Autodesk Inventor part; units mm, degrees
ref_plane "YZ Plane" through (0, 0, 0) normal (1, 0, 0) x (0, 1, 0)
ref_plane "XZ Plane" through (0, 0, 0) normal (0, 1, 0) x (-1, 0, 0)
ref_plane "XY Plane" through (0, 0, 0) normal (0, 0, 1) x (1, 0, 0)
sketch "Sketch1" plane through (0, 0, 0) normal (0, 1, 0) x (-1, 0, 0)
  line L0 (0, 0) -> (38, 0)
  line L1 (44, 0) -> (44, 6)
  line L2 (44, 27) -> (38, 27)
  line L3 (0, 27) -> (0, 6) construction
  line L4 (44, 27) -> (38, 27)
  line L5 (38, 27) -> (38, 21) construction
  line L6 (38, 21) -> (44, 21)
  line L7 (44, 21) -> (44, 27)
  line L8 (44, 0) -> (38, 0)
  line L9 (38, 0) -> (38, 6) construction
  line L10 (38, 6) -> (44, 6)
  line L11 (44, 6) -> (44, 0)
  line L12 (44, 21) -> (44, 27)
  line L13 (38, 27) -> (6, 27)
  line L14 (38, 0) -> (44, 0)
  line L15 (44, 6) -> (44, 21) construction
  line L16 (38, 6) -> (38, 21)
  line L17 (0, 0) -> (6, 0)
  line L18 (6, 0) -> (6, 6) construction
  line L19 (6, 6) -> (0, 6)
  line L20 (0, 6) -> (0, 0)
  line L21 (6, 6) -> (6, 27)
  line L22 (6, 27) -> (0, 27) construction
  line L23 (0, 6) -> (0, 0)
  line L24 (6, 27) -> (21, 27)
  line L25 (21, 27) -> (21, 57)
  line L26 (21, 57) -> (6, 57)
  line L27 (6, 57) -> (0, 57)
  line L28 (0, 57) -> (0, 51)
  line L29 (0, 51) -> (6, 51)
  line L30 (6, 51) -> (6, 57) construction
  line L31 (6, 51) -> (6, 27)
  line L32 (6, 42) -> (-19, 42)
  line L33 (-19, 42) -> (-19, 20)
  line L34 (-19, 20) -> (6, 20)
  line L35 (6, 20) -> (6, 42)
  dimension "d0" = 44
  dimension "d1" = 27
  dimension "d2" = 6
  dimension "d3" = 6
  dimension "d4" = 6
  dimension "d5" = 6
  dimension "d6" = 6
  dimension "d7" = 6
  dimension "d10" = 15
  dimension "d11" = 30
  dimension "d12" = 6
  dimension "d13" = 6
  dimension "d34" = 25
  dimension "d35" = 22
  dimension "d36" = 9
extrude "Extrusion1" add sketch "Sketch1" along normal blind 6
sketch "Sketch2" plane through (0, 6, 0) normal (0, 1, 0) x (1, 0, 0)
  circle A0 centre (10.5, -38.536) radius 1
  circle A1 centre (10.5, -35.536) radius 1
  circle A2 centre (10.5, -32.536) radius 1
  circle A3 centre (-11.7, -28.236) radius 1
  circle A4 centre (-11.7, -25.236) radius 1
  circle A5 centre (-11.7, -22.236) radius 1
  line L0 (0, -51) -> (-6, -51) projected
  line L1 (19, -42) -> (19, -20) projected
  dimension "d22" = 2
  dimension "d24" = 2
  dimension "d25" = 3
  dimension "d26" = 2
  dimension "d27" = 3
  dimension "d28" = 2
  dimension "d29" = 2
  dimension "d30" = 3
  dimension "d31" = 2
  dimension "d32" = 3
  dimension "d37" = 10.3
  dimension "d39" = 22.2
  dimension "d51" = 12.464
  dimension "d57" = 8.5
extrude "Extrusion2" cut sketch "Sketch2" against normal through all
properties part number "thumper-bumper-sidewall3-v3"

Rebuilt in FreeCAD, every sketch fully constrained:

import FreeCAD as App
import Part
import Sketcher

V = App.Vector

doc = App.newDocument("Part")
body = doc.addObject("PartDesign::Body", "Body")

# Sketch on XZ plane
sketch1 = doc.addObject("Sketcher::SketchObject", "Sketch")
body.addObject(sketch1)
sketch1.AttachmentSupport = (doc.XZ_Plane, [""])
sketch1.MapMode = "FlatFace"
sketch1.addGeometry([
    Part.LineSegment(V(0, 6, 0), V(0, 0, 0)),  # 0
    Part.LineSegment(V(0, 0, 0), V(-44, 0, 0)),  # 1
    Part.LineSegment(V(-44, 0, 0), V(-44, 6, 0)),  # 2
    Part.LineSegment(V(-44, 6, 0), V(-38, 6, 0)),  # 3
    Part.LineSegment(V(-38, 6, 0), V(-38, 21, 0)),  # 4
    Part.LineSegment(V(-38, 21, 0), V(-44, 21, 0)),  # 5
    Part.LineSegment(V(-44, 21, 0), V(-44, 27, 0)),  # 6
    Part.LineSegment(V(-44, 27, 0), V(-21, 27, 0)),  # 7
    Part.LineSegment(V(-21, 27, 0), V(-21, 57, 0)),  # 8
    Part.LineSegment(V(-21, 57, 0), V(0, 57, 0)),  # 9
    Part.LineSegment(V(0, 57, 0), V(0, 51, 0)),  # 10
    Part.LineSegment(V(0, 51, 0), V(-6, 51, 0)),  # 11
    Part.LineSegment(V(-6, 51, 0), V(-6, 42, 0)),  # 12
    Part.LineSegment(V(-6, 42, 0), V(19, 42, 0)),  # 13
    Part.LineSegment(V(19, 42, 0), V(19, 20, 0)),  # 14
    Part.LineSegment(V(19, 20, 0), V(-6, 20, 0)),  # 15
    Part.LineSegment(V(-6, 20, 0), V(-6, 6, 0)),  # 16
    Part.LineSegment(V(-6, 6, 0), V(0, 6, 0)),  # 17
], False)
sketch1.addConstraint([
    Sketcher.Constraint("Coincident", 0, 2, 1, 1),
    Sketcher.Constraint("Coincident", 1, 2, 2, 1),
    Sketcher.Constraint("Coincident", 2, 2, 3, 1),
    Sketcher.Constraint("Coincident", 3, 2, 4, 1),
    Sketcher.Constraint("Coincident", 4, 2, 5, 1),
    Sketcher.Constraint("Coincident", 5, 2, 6, 1),
    Sketcher.Constraint("Coincident", 6, 2, 7, 1),
    Sketcher.Constraint("Coincident", 7, 2, 8, 1),
    Sketcher.Constraint("Coincident", 8, 2, 9, 1),
    Sketcher.Constraint("Coincident", 9, 2, 10, 1),
    Sketcher.Constraint("Coincident", 10, 2, 11, 1),
    Sketcher.Constraint("Coincident", 11, 2, 12, 1),
    Sketcher.Constraint("Coincident", 12, 2, 13, 1),
    Sketcher.Constraint("Coincident", 13, 2, 14, 1),
    Sketcher.Constraint("Coincident", 14, 2, 15, 1),
    Sketcher.Constraint("Coincident", 15, 2, 16, 1),
    Sketcher.Constraint("Coincident", 16, 2, 17, 1),
    Sketcher.Constraint("Coincident", 17, 2, 0, 1),
    Sketcher.Constraint("Vertical", 0),
    Sketcher.Constraint("Horizontal", 1),
    Sketcher.Constraint("Vertical", 2),
    Sketcher.Constraint("Horizontal", 3),
    Sketcher.Constraint("Vertical", 4),
    Sketcher.Constraint("Horizontal", 5),
    Sketcher.Constraint("Vertical", 6),
    Sketcher.Constraint("Horizontal", 7),
    Sketcher.Constraint("Vertical", 8),
    Sketcher.Constraint("Horizontal", 9),
    Sketcher.Constraint("Vertical", 10),
    Sketcher.Constraint("Horizontal", 11),
    Sketcher.Constraint("Vertical", 12),
    Sketcher.Constraint("Horizontal", 13),
    Sketcher.Constraint("Vertical", 14),
    Sketcher.Constraint("Horizontal", 15),
    Sketcher.Constraint("Vertical", 16),
    Sketcher.Constraint("Horizontal", 17),
    Sketcher.Constraint("Coincident", 0, 2, -1, 1),
    Sketcher.Constraint("PointOnObject", 9, 2, -2),
    Sketcher.Constraint("Horizontal", 3, 2, 16, 2),
    Sketcher.Constraint("Vertical", 2, 2, 5, 2),
    Sketcher.Constraint("Vertical", 12, 2, 15, 2),
    Sketcher.Constraint("Equal", 5, 11),
    Sketcher.Constraint("Equal", 17, 0),
    Sketcher.Constraint("Equal", 2, 6),
    Sketcher.Constraint("Equal", 6, 10),
    Sketcher.Constraint("DistanceX", 1, 2, 1, 1, 44.0),
    Sketcher.Constraint("DistanceX", 3, 1, 3, 2, 6.0),
    Sketcher.Constraint("DistanceX", 13, 1, 13, 2, 25.0),
    Sketcher.Constraint("DistanceY", 4, 1, 4, 2, 15.0),
    Sketcher.Constraint("DistanceY", 8, 1, 8, 2, 30.0),
    Sketcher.Constraint("DistanceY", 12, 2, 12, 1, 9.0),
    Sketcher.Constraint("DistanceY", 14, 2, 14, 1, 22.0),
    Sketcher.Constraint("DistanceX", 8, 2, 11, 2, 15.0),
])
pad1 = doc.addObject("PartDesign::Pad", "Pad")
body.addObject(pad1)
pad1.Profile = sketch1
pad1.Length = 6
pad1.Reversed = True

# Sketch on XZ plane
sketch2 = doc.addObject("Sketcher::SketchObject", "Sketch001")
body.addObject(sketch2)
sketch2.AttachmentSupport = (doc.XZ_Plane, [""])
sketch2.MapMode = "FlatFace"
sketch2.AttachmentOffset = App.Placement(V(0, 0, -6), App.Rotation())
sketch2.addGeometry([
    Part.Circle(V(10.5, 38.5, 0), V(0, 0, 1), 1),  # 0
    Part.Circle(V(10.5, 35.5, 0), V(0, 0, 1), 1),  # 1
    Part.Circle(V(10.5, 32.5, 0), V(0, 0, 1), 1),  # 2
    Part.Circle(V(-11.7, 28.2, 0), V(0, 0, 1), 1),  # 3
    Part.Circle(V(-11.7, 25.2, 0), V(0, 0, 1), 1),  # 4
    Part.Circle(V(-11.7, 22.2, 0), V(0, 0, 1), 1),  # 5
], False)
sketch2.addConstraint([
    Sketcher.Constraint("Equal", 0, 1),
    Sketcher.Constraint("Equal", 1, 2),
    Sketcher.Constraint("Equal", 2, 3),
    Sketcher.Constraint("Equal", 3, 4),
    Sketcher.Constraint("Equal", 4, 5),
    Sketcher.Constraint("Vertical", 0, 3, 1, 3),
    Sketcher.Constraint("Vertical", 1, 3, 2, 3),
    Sketcher.Constraint("Vertical", 3, 3, 4, 3),
    Sketcher.Constraint("Vertical", 4, 3, 5, 3),
    Sketcher.Constraint("Diameter", 0, 2.0),
    Sketcher.Constraint("DistanceY", 1, 3, 0, 3, 3.0),
    Sketcher.Constraint("DistanceY", 2, 3, 1, 3, 3.0),
    Sketcher.Constraint("DistanceY", 4, 3, 3, 3, 3.0),
    Sketcher.Constraint("DistanceY", 5, 3, 4, 3, 3.0),
    Sketcher.Constraint("DistanceX", 3, 3, 2, 3, 22.2),
    Sketcher.Constraint("DistanceY", 3, 3, 0, 3, 10.3),
    Sketcher.Constraint("DistanceX", -1, 1, 0, 3, 10.5),
    Sketcher.Constraint("DistanceY", -1, 1, 0, 3, 38.536),
])
pocket1 = doc.addObject("PartDesign::Pocket", "Pocket")
body.addObject(pocket1)
pocket1.Profile = sketch2
pocket1.Type = "ThroughAll"
pocket1.Reversed = True

doc.recompute()
